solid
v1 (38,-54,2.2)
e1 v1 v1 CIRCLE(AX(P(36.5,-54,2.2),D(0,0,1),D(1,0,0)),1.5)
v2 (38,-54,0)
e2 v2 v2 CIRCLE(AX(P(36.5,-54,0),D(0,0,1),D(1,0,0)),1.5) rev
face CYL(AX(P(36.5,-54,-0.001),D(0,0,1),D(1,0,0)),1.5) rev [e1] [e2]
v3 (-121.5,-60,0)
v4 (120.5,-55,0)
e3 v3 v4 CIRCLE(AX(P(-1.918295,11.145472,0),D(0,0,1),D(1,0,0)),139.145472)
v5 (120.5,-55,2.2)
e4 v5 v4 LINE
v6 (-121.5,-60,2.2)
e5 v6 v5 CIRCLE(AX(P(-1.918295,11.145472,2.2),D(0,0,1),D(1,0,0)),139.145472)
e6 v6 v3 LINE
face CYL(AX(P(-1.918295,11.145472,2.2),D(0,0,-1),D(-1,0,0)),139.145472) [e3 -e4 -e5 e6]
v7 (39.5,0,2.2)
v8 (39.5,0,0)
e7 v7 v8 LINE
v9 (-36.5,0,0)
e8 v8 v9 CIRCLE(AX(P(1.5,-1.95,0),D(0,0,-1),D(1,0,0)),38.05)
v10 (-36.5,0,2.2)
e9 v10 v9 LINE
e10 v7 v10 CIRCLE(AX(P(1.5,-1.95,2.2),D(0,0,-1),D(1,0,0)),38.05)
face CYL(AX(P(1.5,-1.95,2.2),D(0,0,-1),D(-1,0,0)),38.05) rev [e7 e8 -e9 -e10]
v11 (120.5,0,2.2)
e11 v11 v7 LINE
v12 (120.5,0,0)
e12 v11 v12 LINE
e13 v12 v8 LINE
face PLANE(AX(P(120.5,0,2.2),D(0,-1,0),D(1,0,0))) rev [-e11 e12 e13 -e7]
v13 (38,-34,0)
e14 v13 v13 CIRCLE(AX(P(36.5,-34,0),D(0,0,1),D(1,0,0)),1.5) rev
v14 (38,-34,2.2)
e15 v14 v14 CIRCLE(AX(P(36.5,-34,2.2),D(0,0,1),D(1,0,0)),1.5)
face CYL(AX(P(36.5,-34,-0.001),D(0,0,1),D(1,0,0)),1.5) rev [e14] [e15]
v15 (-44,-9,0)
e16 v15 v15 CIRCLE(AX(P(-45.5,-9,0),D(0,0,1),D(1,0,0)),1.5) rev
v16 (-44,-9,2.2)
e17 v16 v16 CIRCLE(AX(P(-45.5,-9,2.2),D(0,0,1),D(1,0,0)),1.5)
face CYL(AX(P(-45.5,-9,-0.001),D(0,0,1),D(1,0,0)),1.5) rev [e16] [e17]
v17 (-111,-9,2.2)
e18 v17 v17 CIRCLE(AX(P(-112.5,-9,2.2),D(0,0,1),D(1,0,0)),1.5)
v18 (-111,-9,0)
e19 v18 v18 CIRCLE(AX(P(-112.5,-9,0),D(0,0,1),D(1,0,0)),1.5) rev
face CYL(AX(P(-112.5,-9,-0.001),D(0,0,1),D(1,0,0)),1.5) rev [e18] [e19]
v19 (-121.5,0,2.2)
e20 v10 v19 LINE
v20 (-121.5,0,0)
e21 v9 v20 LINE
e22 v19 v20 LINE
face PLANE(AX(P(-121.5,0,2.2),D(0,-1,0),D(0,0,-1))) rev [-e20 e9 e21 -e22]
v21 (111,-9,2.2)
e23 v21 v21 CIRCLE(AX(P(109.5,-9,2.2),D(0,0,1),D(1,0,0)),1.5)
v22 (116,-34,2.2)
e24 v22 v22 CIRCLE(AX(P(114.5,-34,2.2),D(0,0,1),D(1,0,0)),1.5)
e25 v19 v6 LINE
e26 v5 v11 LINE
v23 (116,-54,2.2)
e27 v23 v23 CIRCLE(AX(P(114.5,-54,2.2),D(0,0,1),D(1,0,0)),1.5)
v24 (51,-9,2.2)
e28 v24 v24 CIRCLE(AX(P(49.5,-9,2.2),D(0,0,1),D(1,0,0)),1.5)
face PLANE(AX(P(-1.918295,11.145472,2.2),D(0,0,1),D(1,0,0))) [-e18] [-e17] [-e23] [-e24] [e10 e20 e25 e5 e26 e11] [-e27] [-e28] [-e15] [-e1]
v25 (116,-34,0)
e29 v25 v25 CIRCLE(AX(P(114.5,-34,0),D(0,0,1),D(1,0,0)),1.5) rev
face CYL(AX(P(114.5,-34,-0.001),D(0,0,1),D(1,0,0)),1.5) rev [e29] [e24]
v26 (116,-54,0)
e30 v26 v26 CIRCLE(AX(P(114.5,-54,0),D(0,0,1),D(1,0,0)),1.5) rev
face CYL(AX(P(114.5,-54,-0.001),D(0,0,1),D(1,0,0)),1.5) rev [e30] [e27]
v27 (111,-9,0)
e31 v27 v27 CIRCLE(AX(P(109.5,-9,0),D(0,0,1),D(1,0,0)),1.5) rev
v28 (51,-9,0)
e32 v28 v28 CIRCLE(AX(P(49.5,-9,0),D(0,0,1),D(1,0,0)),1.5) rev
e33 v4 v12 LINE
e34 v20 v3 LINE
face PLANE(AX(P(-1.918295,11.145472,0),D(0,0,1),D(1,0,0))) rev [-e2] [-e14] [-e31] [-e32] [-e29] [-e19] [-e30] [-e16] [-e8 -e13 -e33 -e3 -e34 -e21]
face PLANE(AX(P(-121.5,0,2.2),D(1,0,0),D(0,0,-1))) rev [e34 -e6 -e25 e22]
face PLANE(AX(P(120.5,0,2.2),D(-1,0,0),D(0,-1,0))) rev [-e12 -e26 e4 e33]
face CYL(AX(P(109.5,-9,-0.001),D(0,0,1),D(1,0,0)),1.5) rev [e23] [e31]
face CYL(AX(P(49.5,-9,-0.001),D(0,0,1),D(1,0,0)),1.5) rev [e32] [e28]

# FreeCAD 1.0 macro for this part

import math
import FreeCAD as App
import Part
import Sketcher
from FreeCAD import Vector

doc = App.newDocument("Part")
params = doc.addObject("Spreadsheet::Sheet", "Params")
for row, (alias, value) in enumerate([
    ("sketch1_width", "85 mm"),
    ("sketch1_width2", "81 mm"),
    ("sketch1_height", "60 mm"),
    ("sketch1_height2", "55 mm"),
    ("sketch1_radius", "38.05 mm"),
    ("pad1_length", "2.2 mm"),
    ("sketch2_diameter", "3 mm"),
    ("sketch3_diameter", "3 mm"),
    ("sketch4_diameter", "3 mm"),
    ("sketch5_diameter", "3 mm"),
    ("sketch6_diameter", "3 mm"),
    ("sketch7_diameter", "3 mm"),
    ("sketch8_diameter", "3 mm"),
    ("sketch9_diameter", "3 mm"),
], start=1):
    params.set(f"A{row}", alias)
    params.set(f"B{row}", "=" + value)
    params.setAlias(f"B{row}", alias)

body = doc.addObject("PartDesign::Body", "Body")

sketch1 = body.newObject("Sketcher::SketchObject", "Sketch")
sketch1.AttachmentSupport = (doc.getObject("XY_Plane"), [""])
sketch1.MapMode = "FlatFace"
sketch1.addGeometry([
    Part.LineSegment(Vector(-36, 0, 0), Vector(-122, 0, 0)),
    Part.LineSegment(Vector(-122, 0, 0), Vector(-122, -60, 0)),
    Part.ArcOfCircle(Part.Circle(Vector(-2, 11, 0), Vector(0, 0, 1), 139), math.radians(-149), math.radians(-28)),
    Part.LineSegment(Vector(120, -55, 0), Vector(120, 0, 0)),
    Part.LineSegment(Vector(120, 0, 0), Vector(40, 0, 0)),
    Part.ArcOfCircle(Part.Circle(Vector(2, -2, 0), Vector(0, 0, 1), 38), math.radians(177), math.radians(363)),
], False)
sketch1.addConstraint([
    Sketcher.Constraint("Coincident", 0, 2, 1, 1),
    Sketcher.Constraint("Coincident", 1, 2, 2, 1),
    Sketcher.Constraint("Coincident", 2, 2, 3, 1),
    Sketcher.Constraint("Coincident", 3, 2, 4, 1),
    Sketcher.Constraint("Coincident", 4, 2, 5, 2),
    Sketcher.Constraint("Coincident", 5, 1, 0, 1),
    Sketcher.Constraint("Horizontal", 0),
    Sketcher.Constraint("Vertical", 1),
    Sketcher.Constraint("Vertical", 3),
    Sketcher.Constraint("Horizontal", 4),
    Sketcher.Constraint("PointOnObject", 0, 2, -1),
    Sketcher.Constraint("PointOnObject", 3, 2, -1),
    Sketcher.Constraint("DistanceX", 0, 2, 0, 1, 85.0),
    Sketcher.Constraint("DistanceX", 4, 2, 4, 1, 81.0),
    Sketcher.Constraint("DistanceY", 1, 2, 1, 1, 60.0),
    Sketcher.Constraint("DistanceY", 3, 1, 3, 2, 55.0),
    Sketcher.Constraint("Radius", 5, 38.05),
    Sketcher.Constraint("DistanceX", 0, 2, 5, 3, 123.0),
    Sketcher.Constraint("DistanceX", -1, 1, 5, 3, 1.5),
    Sketcher.Constraint("Radius", 2, 139.145472),
])
sketch1.setExpression("Constraints[12]", "Params.sketch1_width")
sketch1.setExpression("Constraints[13]", "Params.sketch1_width2")
sketch1.setExpression("Constraints[14]", "Params.sketch1_height")
sketch1.setExpression("Constraints[15]", "Params.sketch1_height2")
sketch1.setExpression("Constraints[16]", "Params.sketch1_radius")
pad1 = body.newObject("PartDesign::Pad", "Pad")
pad1.Profile = sketch1
pad1.setExpression("Length", "Params.pad1_length")

sketch2 = body.newObject("Sketcher::SketchObject", "Sketch001")
sketch2.AttachmentSupport = (doc.getObject("XY_Plane"), [""])
sketch2.MapMode = "FlatFace"
sketch2.AttachmentOffset = App.Placement(Vector(0, 0, 2.2), App.Rotation())
sketch2.addGeometry(Part.Circle(Vector(109.5, -9, 0), Vector(0, 0, 1), 1.5), False)
sketch2.addConstraint([
    Sketcher.Constraint("Diameter", 0, 3.0),
    Sketcher.Constraint("DistanceY", 0, 3, -1, 1, 9.0),
    Sketcher.Constraint("DistanceX", -1, 1, 0, 3, 109.5),
])
sketch2.setExpression("Constraints[0]", "Params.sketch2_diameter")
pocket1 = body.newObject("PartDesign::Pocket", "Pocket")
pocket1.Profile = sketch2
pocket1.Type = "UpToFirst"

sketch3 = body.newObject("Sketcher::SketchObject", "Sketch002")
sketch3.AttachmentSupport = (doc.getObject("XY_Plane"), [""])
sketch3.MapMode = "FlatFace"
sketch3.AttachmentOffset = App.Placement(Vector(0, 0, 2.2), App.Rotation())
sketch3.addGeometry(Part.Circle(Vector(49.5, -9, 0), Vector(0, 0, 1), 1.5), False)
sketch3.addConstraint([
    Sketcher.Constraint("Diameter", 0, 3.0),
    Sketcher.Constraint("DistanceY", 0, 3, -1, 1, 9.0),
    Sketcher.Constraint("DistanceX", -1, 1, 0, 3, 49.5),
])
sketch3.setExpression("Constraints[0]", "Params.sketch3_diameter")
pocket2 = body.newObject("PartDesign::Pocket", "Pocket001")
pocket2.Profile = sketch3
pocket2.Type = "UpToFirst"

sketch4 = body.newObject("Sketcher::SketchObject", "Sketch003")
sketch4.AttachmentSupport = (doc.getObject("XY_Plane"), [""])
sketch4.MapMode = "FlatFace"
sketch4.AttachmentOffset = App.Placement(Vector(0, 0, 2.2), App.Rotation())
sketch4.addGeometry(Part.Circle(Vector(-45.5, -9, 0), Vector(0, 0, 1), 1.5), False)
sketch4.addConstraint([
    Sketcher.Constraint("Diameter", 0, 3.0),
    Sketcher.Constraint("DistanceY", 0, 3, -1, 1, 9.0),
    Sketcher.Constraint("DistanceX", 0, 3, -1, 1, 45.5),
])
sketch4.setExpression("Constraints[0]", "Params.sketch4_diameter")
pocket3 = body.newObject("PartDesign::Pocket", "Pocket002")
pocket3.Profile = sketch4
pocket3.Type = "UpToFirst"

sketch5 = body.newObject("Sketcher::SketchObject", "Sketch004")
sketch5.AttachmentSupport = (doc.getObject("XY_Plane"), [""])
sketch5.MapMode = "FlatFace"
sketch5.AttachmentOffset = App.Placement(Vector(0, 0, 2.2), App.Rotation())
sketch5.addGeometry(Part.Circle(Vector(-112.5, -9, 0), Vector(0, 0, 1), 1.5), False)
sketch5.addConstraint([
    Sketcher.Constraint("Diameter", 0, 3.0),
    Sketcher.Constraint("DistanceY", 0, 3, -1, 1, 9.0),
    Sketcher.Constraint("DistanceX", 0, 3, -1, 1, 112.5),
])
sketch5.setExpression("Constraints[0]", "Params.sketch5_diameter")
pocket4 = body.newObject("PartDesign::Pocket", "Pocket003")
pocket4.Profile = sketch5
pocket4.Type = "UpToFirst"

sketch6 = body.newObject("Sketcher::SketchObject", "Sketch005")
sketch6.AttachmentSupport = (doc.getObject("XY_Plane"), [""])
sketch6.MapMode = "FlatFace"
sketch6.AttachmentOffset = App.Placement(Vector(0, 0, 2.2), App.Rotation())
sketch6.addGeometry(Part.Circle(Vector(114.5, -34, 0), Vector(0, 0, 1), 1.5), False)
sketch6.addConstraint([
    Sketcher.Constraint("Diameter", 0, 3.0),
    Sketcher.Constraint("DistanceY", 0, 3, -1, 1, 34.0),
    Sketcher.Constraint("DistanceX", -1, 1, 0, 3, 114.5),
])
sketch6.setExpression("Constraints[0]", "Params.sketch6_diameter")
pocket5 = body.newObject("PartDesign::Pocket", "Pocket004")
pocket5.Profile = sketch6
pocket5.Type = "UpToFirst"

sketch7 = body.newObject("Sketcher::SketchObject", "Sketch006")
sketch7.AttachmentSupport = (doc.getObject("XY_Plane"), [""])
sketch7.MapMode = "FlatFace"
sketch7.AttachmentOffset = App.Placement(Vector(0, 0, 2.2), App.Rotation())
sketch7.addGeometry(Part.Circle(Vector(114.5, -54, 0), Vector(0, 0, 1), 1.5), False)
sketch7.addConstraint([
    Sketcher.Constraint("Diameter", 0, 3.0),
    Sketcher.Constraint("DistanceY", 0, 3, -1, 1, 54.0),
    Sketcher.Constraint("DistanceX", -1, 1, 0, 3, 114.5),
])
sketch7.setExpression("Constraints[0]", "Params.sketch7_diameter")
pocket6 = body.newObject("PartDesign::Pocket", "Pocket005")
pocket6.Profile = sketch7
pocket6.Type = "UpToFirst"

sketch8 = body.newObject("Sketcher::SketchObject", "Sketch007")
sketch8.AttachmentSupport = (doc.getObject("XY_Plane"), [""])
sketch8.MapMode = "FlatFace"
sketch8.AttachmentOffset = App.Placement(Vector(0, 0, 2.2), App.Rotation())
sketch8.addGeometry(Part.Circle(Vector(36.5, -34, 0), Vector(0, 0, 1), 1.5), False)
sketch8.addConstraint([
    Sketcher.Constraint("Diameter", 0, 3.0),
    Sketcher.Constraint("DistanceY", 0, 3, -1, 1, 34.0),
    Sketcher.Constraint("DistanceX", -1, 1, 0, 3, 36.5),
])
sketch8.setExpression("Constraints[0]", "Params.sketch8_diameter")
pocket7 = body.newObject("PartDesign::Pocket", "Pocket006")
pocket7.Profile = sketch8
pocket7.Type = "UpToFirst"

sketch9 = body.newObject("Sketcher::SketchObject", "Sketch008")
sketch9.AttachmentSupport = (doc.getObject("XY_Plane"), [""])
sketch9.MapMode = "FlatFace"
sketch9.AttachmentOffset = App.Placement(Vector(0, 0, 2.2), App.Rotation())
sketch9.addGeometry(Part.Circle(Vector(36.5, -54, 0), Vector(0, 0, 1), 1.5), False)
sketch9.addConstraint([
    Sketcher.Constraint("Diameter", 0, 3.0),
    Sketcher.Constraint("DistanceY", 0, 3, -1, 1, 54.0),
    Sketcher.Constraint("DistanceX", -1, 1, 0, 3, 36.5),
])
sketch9.setExpression("Constraints[0]", "Params.sketch9_diameter")
pocket8 = body.newObject("PartDesign::Pocket", "Pocket007")
pocket8.Profile = sketch9
pocket8.Type = "UpToFirst"

doc.recompute()
